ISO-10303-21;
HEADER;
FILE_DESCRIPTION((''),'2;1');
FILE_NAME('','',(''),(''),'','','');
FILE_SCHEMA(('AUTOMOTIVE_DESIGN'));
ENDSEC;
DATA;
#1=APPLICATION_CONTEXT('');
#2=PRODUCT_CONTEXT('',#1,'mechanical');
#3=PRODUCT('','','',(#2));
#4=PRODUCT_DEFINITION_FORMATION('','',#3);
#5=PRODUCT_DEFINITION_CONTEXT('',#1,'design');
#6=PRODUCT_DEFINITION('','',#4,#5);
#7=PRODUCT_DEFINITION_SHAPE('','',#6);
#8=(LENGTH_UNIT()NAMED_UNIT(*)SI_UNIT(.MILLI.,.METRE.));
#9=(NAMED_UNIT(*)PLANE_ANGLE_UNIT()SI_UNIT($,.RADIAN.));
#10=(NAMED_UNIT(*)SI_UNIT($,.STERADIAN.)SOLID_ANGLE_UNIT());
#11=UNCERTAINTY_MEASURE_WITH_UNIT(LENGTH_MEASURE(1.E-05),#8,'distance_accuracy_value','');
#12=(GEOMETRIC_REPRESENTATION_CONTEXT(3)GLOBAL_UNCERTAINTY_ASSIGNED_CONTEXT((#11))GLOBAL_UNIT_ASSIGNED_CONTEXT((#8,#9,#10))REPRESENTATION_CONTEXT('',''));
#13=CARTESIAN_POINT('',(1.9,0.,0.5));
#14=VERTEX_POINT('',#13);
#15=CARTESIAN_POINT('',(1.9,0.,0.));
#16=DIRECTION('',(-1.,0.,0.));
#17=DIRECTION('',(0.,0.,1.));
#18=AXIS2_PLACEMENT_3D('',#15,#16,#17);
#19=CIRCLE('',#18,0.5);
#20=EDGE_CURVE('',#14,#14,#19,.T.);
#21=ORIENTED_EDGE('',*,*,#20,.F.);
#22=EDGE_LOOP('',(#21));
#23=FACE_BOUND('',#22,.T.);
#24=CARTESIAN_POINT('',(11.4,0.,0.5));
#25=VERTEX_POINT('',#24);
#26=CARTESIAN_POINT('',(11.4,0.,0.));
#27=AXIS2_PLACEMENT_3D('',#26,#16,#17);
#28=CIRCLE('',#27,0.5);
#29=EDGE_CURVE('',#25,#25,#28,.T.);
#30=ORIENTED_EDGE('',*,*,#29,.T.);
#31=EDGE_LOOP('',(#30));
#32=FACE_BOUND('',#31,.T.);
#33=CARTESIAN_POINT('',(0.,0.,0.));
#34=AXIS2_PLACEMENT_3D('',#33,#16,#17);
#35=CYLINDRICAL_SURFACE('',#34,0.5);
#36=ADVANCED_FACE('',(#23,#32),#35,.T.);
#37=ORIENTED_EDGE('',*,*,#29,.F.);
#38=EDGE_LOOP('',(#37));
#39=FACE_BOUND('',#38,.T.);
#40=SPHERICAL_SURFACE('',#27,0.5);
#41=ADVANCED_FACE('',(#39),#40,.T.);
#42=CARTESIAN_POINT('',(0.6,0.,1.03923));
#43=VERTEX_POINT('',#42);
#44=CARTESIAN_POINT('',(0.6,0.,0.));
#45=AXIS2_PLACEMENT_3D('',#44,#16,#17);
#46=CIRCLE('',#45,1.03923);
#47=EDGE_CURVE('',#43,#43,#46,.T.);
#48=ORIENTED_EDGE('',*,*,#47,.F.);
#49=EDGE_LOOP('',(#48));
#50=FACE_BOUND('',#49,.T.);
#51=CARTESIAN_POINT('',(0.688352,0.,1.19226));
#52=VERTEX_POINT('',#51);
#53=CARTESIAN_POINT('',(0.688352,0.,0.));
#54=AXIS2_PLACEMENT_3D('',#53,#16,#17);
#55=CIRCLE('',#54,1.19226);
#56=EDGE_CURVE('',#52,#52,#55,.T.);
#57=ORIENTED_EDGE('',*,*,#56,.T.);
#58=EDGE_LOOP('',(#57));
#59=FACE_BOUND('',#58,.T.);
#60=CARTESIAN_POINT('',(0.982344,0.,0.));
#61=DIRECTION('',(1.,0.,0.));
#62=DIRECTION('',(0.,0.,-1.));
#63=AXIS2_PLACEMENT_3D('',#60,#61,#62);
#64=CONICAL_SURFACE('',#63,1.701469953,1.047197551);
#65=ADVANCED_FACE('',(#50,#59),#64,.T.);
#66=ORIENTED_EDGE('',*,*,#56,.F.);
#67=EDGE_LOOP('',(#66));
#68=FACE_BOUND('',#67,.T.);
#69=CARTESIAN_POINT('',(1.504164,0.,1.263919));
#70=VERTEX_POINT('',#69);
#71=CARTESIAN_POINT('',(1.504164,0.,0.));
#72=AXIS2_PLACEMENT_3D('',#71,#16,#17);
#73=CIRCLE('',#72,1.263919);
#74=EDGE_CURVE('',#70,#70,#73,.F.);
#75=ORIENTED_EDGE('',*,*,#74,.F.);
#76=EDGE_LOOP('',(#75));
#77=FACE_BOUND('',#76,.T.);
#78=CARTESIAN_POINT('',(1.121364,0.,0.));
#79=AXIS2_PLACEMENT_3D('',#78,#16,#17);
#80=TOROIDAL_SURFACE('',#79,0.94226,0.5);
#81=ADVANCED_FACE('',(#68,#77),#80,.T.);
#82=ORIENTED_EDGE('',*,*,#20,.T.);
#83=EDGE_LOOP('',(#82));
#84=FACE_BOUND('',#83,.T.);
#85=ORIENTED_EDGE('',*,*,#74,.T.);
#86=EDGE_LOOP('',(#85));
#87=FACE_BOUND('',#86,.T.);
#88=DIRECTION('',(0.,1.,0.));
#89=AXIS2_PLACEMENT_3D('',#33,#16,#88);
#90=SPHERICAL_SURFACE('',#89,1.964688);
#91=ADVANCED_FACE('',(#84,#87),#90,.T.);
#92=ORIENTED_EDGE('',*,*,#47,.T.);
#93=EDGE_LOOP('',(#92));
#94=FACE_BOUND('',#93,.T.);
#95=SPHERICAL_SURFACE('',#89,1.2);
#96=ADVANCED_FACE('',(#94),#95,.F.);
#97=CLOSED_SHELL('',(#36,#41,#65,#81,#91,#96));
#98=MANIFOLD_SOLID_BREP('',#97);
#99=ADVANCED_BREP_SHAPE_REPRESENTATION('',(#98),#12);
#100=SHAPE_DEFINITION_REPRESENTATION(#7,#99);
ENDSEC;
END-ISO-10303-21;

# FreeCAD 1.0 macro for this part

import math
import FreeCAD as App
import Part
import Sketcher
from FreeCAD import Vector
Q = App.Units.Quantity


def edges_at(feature, points):
    """Names of the edges that pass closest to the given points."""
    edges = feature.Shape.Edges
    near = lambda p: min(range(len(edges)), key=lambda i: edges[i].distToShape(Part.Vertex(*p))[0])
    return sorted({f"Edge{near(p) + 1}" for p in points})

doc = App.newDocument("Part")
body = doc.addObject("PartDesign::Body", "Body")

# Sketch on XY plane
sketch1 = body.newObject("Sketcher::SketchObject", "Sketch")
sketch1.AttachmentSupport = (doc.getObject("XY_Plane"), [""])
sketch1.MapMode = "FlatFace"
sketch1.addGeometry(Part.LineSegment(Vector(11.9, 0.5, 0), Vector(1.9, 0.5, 0)), False)
sketch1.addGeometry(Part.ArcOfCircle(Part.Circle(Vector(0, 0, 0), Vector(0, 0, 1), 2), math.radians(15), math.radians(60)), False)
sketch1.addGeometry(Part.LineSegment(Vector(1, 1.7, 0), Vector(0.6, 1, 0)), False)
sketch1.addGeometry(Part.ArcOfCircle(Part.Circle(Vector(0, 0, 0), Vector(0, 0, 1), 1.2), math.radians(25), math.radians(60)), False)
sketch1.addGeometry(Part.ArcOfCircle(Part.Circle(Vector(0, 0, 0), Vector(0, 0, 1), 1.2), math.radians(0), math.radians(25)), False)
sketch1.addGeometry(Part.LineSegment(Vector(1.2, 0, 0), Vector(11.9, 0, 0)), False)
sketch1.addGeometry(Part.LineSegment(Vector(11.9, 0, 0), Vector(11.9, 0.5, 0)), False)
sketch1.addConstraint(Sketcher.Constraint("Coincident", 0, 2, 1, 1))
sketch1.addConstraint(Sketcher.Constraint("Coincident", 1, 2, 2, 1))
sketch1.addConstraint(Sketcher.Constraint("Coincident", 2, 2, 3, 2))
sketch1.addConstraint(Sketcher.Constraint("Tangent", 3, 1, 4, 2))
sketch1.addConstraint(Sketcher.Constraint("Coincident", 4, 1, 5, 1))
sketch1.addConstraint(Sketcher.Constraint("Coincident", 5, 2, 6, 1))
sketch1.addConstraint(Sketcher.Constraint("Coincident", 6, 2, 0, 1))
sketch1.addConstraint(Sketcher.Constraint("Horizontal", 0))
sketch1.addConstraint(Sketcher.Constraint("Horizontal", 5))
sketch1.addConstraint(Sketcher.Constraint("Vertical", 6))
sketch1.addConstraint(Sketcher.Constraint("Coincident", 1, 3, -1, 1))
sketch1.addConstraint(Sketcher.Constraint("Coincident", 3, 3, -1, 1))
sketch1.addConstraint(Sketcher.Constraint("Equal", 3, 4))
sketch1.addConstraint(Sketcher.Constraint("PointOnObject", 4, 1, -1))
sketch1.addConstraint(Sketcher.Constraint("Horizontal", 0, 2, 3, 1))
sketch1.addConstraint(Sketcher.Constraint("Radius", 3, Q("1.2 mm")))
sketch1.addConstraint(Sketcher.Constraint("DistanceX", 0, 2, 0, 1, Q("10 mm")))
sketch1.addConstraint(Sketcher.Constraint("Angle", 2, Q("-120 deg")))
sketch1.addConstraint(Sketcher.Constraint("DistanceX", 5, 1, 5, 2, Q("10.7 mm")))
sketch1.addConstraint(Sketcher.Constraint("DistanceY", 6, 1, 6, 2, Q("0.5 mm")))
sketch1.addConstraint(Sketcher.Constraint("DistanceX", -1, 1, 2, 2, Q("0.6 mm")))
revolution = body.newObject("PartDesign::Revolution", "Revolution")
revolution.Profile = sketch1
revolution.ReferenceAxis = (sketch1, ["H_Axis"])
revolution.Angle = 360
doc.recompute()

fillet = body.newObject("PartDesign::Fillet", "Fillet")
fillet.Base = (revolution, edges_at(revolution, [(11.9, -0.5, 0), (0.982, -1.701, 0)]))
fillet.Radius = 0.5

doc.recompute()
